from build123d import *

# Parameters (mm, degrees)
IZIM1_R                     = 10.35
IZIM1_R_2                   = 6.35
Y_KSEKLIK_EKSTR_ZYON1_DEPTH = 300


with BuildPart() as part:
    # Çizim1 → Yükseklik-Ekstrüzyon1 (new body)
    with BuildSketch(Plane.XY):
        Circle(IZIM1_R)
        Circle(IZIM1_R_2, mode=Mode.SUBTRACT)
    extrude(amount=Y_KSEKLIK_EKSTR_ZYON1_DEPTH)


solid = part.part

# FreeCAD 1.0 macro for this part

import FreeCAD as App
import Part
import Sketcher

doc = App.newDocument("Part")
params = doc.addObject("Spreadsheet::Sheet", "Params")
for row, (alias, value) in enumerate([
    ("sketch1_diameter", "20.7 mm"),
    ("sketch1_diameter2", "12.7 mm"),
    ("pad1_length", "300 mm"),
], start=1):
    params.set(f"A{row}", alias)
    params.set(f"B{row}", "=" + value)
    params.setAlias(f"B{row}", alias)

body = doc.addObject("PartDesign::Body", "Body")

sketch1 = doc.addObject("Sketcher::SketchObject", "Sketch")
body.addObject(sketch1)
sketch1.AttachmentSupport = (doc.XY_Plane, [""])
sketch1.MapMode = "FlatFace"
sketch1.addGeometry(Part.Circle(App.Vector(0, 0, 0), App.Vector(0, 0, 1), 10), False)
sketch1.addGeometry(Part.Circle(App.Vector(0, 0, 0), App.Vector(0, 0, 1), 6), False)
sketch1.addConstraint(Sketcher.Constraint("Coincident", 0, 3, -1, 1))
sketch1.addConstraint(Sketcher.Constraint("Coincident", 1, 3, -1, 1))
sketch1.addConstraint(Sketcher.Constraint("Diameter", 0, 20.7))
sketch1.addConstraint(Sketcher.Constraint("Diameter", 1, 12.7))
sketch1.setExpression("Constraints[2]", "Params.sketch1_diameter")
sketch1.setExpression("Constraints[3]", "Params.sketch1_diameter2")
pad1 = doc.addObject("PartDesign::Pad", "Pad")
body.addObject(pad1)
pad1.Profile = sketch1
pad1.setExpression("Length", "Params.pad1_length")

doc.recompute()
